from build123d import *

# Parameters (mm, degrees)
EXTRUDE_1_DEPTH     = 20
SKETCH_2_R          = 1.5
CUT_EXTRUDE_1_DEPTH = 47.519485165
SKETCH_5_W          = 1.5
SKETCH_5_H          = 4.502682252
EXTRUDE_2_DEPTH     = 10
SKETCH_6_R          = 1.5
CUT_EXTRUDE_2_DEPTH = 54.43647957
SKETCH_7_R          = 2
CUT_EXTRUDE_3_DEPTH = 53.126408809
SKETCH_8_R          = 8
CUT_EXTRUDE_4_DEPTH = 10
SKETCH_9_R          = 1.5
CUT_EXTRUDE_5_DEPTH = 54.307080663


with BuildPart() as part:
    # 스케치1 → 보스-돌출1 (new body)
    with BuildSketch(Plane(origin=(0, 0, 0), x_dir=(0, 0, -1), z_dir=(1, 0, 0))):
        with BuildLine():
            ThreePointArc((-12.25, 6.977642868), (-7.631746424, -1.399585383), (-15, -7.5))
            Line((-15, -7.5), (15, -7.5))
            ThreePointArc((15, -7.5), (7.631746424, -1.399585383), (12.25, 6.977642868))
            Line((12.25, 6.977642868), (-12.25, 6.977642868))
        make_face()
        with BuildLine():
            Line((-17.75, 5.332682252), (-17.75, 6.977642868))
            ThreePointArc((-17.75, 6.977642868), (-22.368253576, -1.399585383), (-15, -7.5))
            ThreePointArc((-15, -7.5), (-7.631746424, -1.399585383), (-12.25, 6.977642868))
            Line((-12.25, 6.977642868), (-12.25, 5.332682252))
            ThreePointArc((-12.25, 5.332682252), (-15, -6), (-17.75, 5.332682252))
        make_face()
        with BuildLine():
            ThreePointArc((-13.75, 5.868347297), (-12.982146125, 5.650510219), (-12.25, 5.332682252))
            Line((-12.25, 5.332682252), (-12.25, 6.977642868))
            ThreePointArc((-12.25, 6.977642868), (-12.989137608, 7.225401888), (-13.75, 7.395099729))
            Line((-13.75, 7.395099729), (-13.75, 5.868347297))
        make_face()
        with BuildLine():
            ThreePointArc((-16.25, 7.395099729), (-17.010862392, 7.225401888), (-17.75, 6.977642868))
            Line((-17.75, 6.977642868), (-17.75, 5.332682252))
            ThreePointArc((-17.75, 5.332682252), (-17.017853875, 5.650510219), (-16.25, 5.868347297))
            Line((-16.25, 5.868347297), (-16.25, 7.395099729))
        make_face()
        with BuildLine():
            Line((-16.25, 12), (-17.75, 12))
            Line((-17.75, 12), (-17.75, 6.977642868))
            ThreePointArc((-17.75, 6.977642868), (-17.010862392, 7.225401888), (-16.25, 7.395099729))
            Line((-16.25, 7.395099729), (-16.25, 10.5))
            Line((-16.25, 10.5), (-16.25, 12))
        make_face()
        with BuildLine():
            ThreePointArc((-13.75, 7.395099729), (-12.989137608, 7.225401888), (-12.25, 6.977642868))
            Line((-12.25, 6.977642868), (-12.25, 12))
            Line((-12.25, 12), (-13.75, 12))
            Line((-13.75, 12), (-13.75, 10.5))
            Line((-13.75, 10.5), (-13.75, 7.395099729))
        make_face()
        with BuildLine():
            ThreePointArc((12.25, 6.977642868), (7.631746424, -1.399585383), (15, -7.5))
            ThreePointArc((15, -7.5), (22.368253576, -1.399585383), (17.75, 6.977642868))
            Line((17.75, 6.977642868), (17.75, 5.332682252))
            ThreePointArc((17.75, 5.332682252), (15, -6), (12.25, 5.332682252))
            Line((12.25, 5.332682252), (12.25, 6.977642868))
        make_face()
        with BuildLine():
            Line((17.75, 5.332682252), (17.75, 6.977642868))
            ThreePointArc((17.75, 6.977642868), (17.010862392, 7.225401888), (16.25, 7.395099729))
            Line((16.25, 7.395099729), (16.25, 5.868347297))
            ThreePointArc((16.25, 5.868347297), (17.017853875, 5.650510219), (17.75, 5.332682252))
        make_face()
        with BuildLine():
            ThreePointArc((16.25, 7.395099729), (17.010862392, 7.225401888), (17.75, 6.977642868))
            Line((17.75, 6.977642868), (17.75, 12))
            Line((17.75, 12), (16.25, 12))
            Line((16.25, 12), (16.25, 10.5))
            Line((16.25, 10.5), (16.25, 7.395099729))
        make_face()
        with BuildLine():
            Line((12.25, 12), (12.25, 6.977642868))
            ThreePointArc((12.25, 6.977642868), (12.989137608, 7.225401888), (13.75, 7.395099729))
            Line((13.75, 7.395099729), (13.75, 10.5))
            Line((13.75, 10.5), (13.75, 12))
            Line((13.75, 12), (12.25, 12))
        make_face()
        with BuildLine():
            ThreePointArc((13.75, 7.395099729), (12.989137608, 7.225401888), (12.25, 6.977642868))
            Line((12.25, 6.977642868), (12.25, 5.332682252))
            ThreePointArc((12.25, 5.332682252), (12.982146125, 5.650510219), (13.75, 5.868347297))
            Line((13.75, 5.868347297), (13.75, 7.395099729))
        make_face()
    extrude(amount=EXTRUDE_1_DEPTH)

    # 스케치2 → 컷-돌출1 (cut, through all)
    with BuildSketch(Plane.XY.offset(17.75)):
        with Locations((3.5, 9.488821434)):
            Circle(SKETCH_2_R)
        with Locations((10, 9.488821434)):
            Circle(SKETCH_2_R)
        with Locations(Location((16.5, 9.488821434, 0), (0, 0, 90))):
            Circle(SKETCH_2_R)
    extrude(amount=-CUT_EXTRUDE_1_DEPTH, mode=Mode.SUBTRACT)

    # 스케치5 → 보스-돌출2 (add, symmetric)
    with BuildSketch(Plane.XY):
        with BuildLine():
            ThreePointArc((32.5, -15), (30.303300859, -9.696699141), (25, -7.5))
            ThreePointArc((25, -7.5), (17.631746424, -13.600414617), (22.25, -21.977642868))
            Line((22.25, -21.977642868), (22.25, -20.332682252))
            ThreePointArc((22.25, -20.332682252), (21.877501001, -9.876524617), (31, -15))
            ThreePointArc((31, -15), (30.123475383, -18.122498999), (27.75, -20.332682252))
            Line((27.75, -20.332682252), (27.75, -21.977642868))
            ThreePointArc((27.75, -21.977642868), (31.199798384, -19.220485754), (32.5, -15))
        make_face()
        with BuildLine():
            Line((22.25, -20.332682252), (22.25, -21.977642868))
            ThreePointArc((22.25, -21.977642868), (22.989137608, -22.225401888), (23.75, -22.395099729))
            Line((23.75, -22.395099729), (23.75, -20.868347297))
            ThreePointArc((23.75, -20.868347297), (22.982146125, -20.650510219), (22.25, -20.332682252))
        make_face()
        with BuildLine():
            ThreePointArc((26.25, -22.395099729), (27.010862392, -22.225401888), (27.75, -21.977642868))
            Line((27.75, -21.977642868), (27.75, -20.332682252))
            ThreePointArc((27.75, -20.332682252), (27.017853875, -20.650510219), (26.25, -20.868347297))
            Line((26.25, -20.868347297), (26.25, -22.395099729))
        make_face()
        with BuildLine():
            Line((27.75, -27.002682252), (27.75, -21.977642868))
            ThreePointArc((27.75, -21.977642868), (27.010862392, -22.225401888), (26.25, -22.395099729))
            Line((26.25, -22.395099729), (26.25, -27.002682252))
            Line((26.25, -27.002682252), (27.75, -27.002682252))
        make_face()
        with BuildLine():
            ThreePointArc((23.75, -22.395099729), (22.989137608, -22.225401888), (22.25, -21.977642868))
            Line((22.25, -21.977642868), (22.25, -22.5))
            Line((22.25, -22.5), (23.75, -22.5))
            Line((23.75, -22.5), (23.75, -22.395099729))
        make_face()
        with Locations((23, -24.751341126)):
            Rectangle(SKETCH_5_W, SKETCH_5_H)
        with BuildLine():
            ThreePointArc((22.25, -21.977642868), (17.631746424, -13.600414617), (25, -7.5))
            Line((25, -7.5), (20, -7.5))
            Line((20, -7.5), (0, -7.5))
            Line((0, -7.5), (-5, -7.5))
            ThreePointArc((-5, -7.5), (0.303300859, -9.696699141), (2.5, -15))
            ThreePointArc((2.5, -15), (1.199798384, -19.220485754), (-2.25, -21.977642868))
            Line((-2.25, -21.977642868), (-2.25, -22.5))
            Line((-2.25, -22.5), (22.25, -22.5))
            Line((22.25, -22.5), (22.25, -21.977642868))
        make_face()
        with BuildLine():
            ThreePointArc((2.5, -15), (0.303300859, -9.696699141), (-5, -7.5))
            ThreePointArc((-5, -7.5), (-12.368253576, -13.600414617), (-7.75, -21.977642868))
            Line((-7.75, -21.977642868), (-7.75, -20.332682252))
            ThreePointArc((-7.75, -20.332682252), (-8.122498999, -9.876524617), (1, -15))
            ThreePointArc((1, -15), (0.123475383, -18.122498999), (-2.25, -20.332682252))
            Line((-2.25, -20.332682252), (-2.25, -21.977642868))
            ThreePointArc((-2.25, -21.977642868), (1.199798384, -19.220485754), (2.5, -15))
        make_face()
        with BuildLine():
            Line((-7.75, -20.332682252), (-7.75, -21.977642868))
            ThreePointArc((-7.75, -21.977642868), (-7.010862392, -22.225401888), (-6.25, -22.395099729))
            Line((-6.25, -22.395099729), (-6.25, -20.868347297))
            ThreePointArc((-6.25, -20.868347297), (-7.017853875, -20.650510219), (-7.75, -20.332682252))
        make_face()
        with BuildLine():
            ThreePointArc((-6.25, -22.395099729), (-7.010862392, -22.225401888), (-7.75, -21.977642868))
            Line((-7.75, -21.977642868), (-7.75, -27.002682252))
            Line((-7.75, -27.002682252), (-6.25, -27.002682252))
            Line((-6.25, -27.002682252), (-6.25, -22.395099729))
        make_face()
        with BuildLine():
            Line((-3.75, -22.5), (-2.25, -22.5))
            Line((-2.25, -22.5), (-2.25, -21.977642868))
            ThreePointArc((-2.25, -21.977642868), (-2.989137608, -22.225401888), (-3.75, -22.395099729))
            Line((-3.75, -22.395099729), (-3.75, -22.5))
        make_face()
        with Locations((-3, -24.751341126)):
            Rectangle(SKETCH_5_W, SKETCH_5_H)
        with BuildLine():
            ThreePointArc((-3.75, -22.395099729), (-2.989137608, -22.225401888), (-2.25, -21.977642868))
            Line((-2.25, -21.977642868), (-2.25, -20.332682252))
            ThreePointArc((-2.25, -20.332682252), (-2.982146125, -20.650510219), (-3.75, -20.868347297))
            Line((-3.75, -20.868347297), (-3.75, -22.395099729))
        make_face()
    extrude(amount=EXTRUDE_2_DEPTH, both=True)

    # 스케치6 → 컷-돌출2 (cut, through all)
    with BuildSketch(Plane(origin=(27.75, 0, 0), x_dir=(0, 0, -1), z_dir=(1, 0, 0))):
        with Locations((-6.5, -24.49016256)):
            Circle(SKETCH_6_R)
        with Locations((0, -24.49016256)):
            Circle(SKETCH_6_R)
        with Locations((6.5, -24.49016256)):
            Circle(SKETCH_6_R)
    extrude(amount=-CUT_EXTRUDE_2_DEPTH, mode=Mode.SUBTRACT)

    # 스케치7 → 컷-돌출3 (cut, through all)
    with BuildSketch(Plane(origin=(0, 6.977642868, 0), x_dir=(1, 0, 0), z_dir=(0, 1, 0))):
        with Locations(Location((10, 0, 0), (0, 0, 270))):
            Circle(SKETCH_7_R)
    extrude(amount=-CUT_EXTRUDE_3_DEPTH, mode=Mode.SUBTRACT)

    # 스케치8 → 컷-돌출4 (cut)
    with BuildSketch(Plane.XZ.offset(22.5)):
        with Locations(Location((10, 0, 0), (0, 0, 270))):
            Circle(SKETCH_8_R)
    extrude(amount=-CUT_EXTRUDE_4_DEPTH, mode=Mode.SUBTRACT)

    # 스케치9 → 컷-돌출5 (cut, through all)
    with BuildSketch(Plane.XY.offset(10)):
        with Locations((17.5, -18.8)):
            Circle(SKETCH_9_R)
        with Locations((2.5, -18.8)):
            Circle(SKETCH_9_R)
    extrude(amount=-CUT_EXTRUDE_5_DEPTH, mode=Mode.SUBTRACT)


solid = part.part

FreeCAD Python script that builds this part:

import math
import FreeCAD as App
import Part
import Sketcher

V = App.Vector

doc = App.newDocument("Part")
params = doc.addObject("Spreadsheet::Sheet", "Params")
for row, (alias, value) in enumerate([
    ("sketch1_radius", "6 mm"),
    ("sketch1_radius2", "7.5 mm"),
    ("sketch1_height", "30 mm"),
    ("sketch1_height2", "1.5 mm"),
    ("sketch1_height3", "24.5 mm"),
    ("pad1_length", "20 mm"),
    ("sketch2_diameter", "3 mm"),
    ("sketch3_radius", "6 mm"),
    ("sketch3_radius2", "7.5 mm"),
    ("sketch3_width", "30 mm"),
    ("sketch3_width2", "1.5 mm"),
    ("sketch3_width3", "24.5 mm"),
    ("pad2_length", "20 mm"),
    ("sketch4_diameter", "3 mm"),
    ("sketch5_diameter", "4 mm"),
    ("sketch6_diameter", "16 mm"),
    ("pocket4_length", "10 mm"),
    ("sketch7_diameter", "3 mm"),
], start=1):
    params.set(f"A{row}", alias)
    params.set(f"B{row}", "=" + value)
    params.setAlias(f"B{row}", alias)

body = doc.addObject("PartDesign::Body", "Body")

# Sketch on YZ plane
sketch1 = body.newObject("Sketcher::SketchObject", "Sketch")
sketch1.AttachmentSupport = (doc.getObject("YZ_Plane"), [""])
sketch1.MapMode = "FlatFace"
sketch1.addGeometry(Part.LineSegment(V(-7.5, 15, 0), V(-7.5, -15, 0)), False)
sketch1.addGeometry(Part.ArcOfCircle(Part.Circle(V(0, -15, 0), V(0, 0, 1), 7.5), math.radians(180), math.radians(338)), False)
sketch1.addGeometry(Part.LineSegment(V(7, -17.8, 0), V(12, -17.8, 0)), False)
sketch1.addGeometry(Part.LineSegment(V(12, -17.8, 0), V(12, -16.2, 0)), False)
sketch1.addGeometry(Part.LineSegment(V(12, -16.2, 0), V(5.9, -16.2, 0)), False)
sketch1.addGeometry(Part.ArcOfCircle(Part.Circle(V(0, -15, 0), V(0, 0, 1), 6), math.radians(-27.28), math.radians(-12.02)), False)
sketch1.addGeometry(Part.ArcOfCircle(Part.Circle(V(0, -15, 0), V(0, 0, 1), 6), math.radians(27), math.radians(333)), False)
sketch1.addGeometry(Part.ArcOfCircle(Part.Circle(V(0, -15, 0), V(0, 0, 1), 6), math.radians(12.02), math.radians(27.28)), False)
sketch1.addGeometry(Part.LineSegment(V(5.9, -13.8, 0), V(12, -13.8, 0)), False)
sketch1.addGeometry(Part.LineSegment(V(12, -13.8, 0), V(12, -12.2, 0)), False)
sketch1.addGeometry(Part.LineSegment(V(12, -12.2, 0), V(7, -12.2, 0)), False)
sketch1.addGeometry(Part.LineSegment(V(7, -12.2, 0), V(7, 12.2, 0)), False)
sketch1.addGeometry(Part.LineSegment(V(7, 12.2, 0), V(12, 12.2, 0)), False)
sketch1.addGeometry(Part.LineSegment(V(12, 12.2, 0), V(12, 13.8, 0)), False)
sketch1.addGeometry(Part.LineSegment(V(12, 13.8, 0), V(5.9, 13.8, 0)), False)
sketch1.addGeometry(Part.ArcOfCircle(Part.Circle(V(0, 15, 0), V(0, 0, 1), 6), math.radians(-27.28), math.radians(-12.02)), False)
sketch1.addGeometry(Part.ArcOfCircle(Part.Circle(V(0, 15, 0), V(0, 0, 1), 6), math.radians(27), math.radians(333)), False)
sketch1.addGeometry(Part.ArcOfCircle(Part.Circle(V(0, 15, 0), V(0, 0, 1), 6), math.radians(12.02), math.radians(27.28)), False)
sketch1.addGeometry(Part.LineSegment(V(5.9, 16.2, 0), V(12, 16.2, 0)), False)
sketch1.addGeometry(Part.LineSegment(V(12, 16.2, 0), V(12, 17.8, 0)), False)
sketch1.addGeometry(Part.LineSegment(V(12, 17.8, 0), V(7, 17.8, 0)), False)
sketch1.addGeometry(Part.ArcOfCircle(Part.Circle(V(0, 15, 0), V(0, 0, 1), 7.5), math.radians(22), math.radians(180)), False)
sketch1.addConstraint(Sketcher.Constraint("Tangent", 0, 2, 1, 1))
sketch1.addConstraint(Sketcher.Constraint("Coincident", 1, 2, 2, 1))
sketch1.addConstraint(Sketcher.Constraint("Coincident", 2, 2, 3, 1))
sketch1.addConstraint(Sketcher.Constraint("Coincident", 3, 2, 4, 1))
sketch1.addConstraint(Sketcher.Constraint("Coincident", 4, 2, 5, 2))
sketch1.addConstraint(Sketcher.Constraint("Tangent", 5, 1, 6, 2))
sketch1.addConstraint(Sketcher.Constraint("Tangent", 6, 1, 7, 2))
sketch1.addConstraint(Sketcher.Constraint("Coincident", 7, 1, 8, 1))
sketch1.addConstraint(Sketcher.Constraint("Coincident", 8, 2, 9, 1))
sketch1.addConstraint(Sketcher.Constraint("Coincident", 9, 2, 10, 1))
sketch1.addConstraint(Sketcher.Constraint("Coincident", 10, 2, 11, 1))
sketch1.addConstraint(Sketcher.Constraint("Coincident", 11, 2, 12, 1))
sketch1.addConstraint(Sketcher.Constraint("Coincident", 12, 2, 13, 1))
sketch1.addConstraint(Sketcher.Constraint("Coincident", 13, 2, 14, 1))
sketch1.addConstraint(Sketcher.Constraint("Coincident", 14, 2, 15, 2))
sketch1.addConstraint(Sketcher.Constraint("Tangent", 15, 1, 16, 2))
sketch1.addConstraint(Sketcher.Constraint("Tangent", 16, 1, 17, 2))
sketch1.addConstraint(Sketcher.Constraint("Coincident", 17, 1, 18, 1))
sketch1.addConstraint(Sketcher.Constraint("Coincident", 18, 2, 19, 1))
sketch1.addConstraint(Sketcher.Constraint("Coincident", 19, 2, 20, 1))
sketch1.addConstraint(Sketcher.Constraint("Coincident", 20, 2, 21, 1))
sketch1.addConstraint(Sketcher.Constraint("Tangent", 21, 2, 0, 1))
sketch1.addConstraint(Sketcher.Constraint("Vertical", 0))
sketch1.addConstraint(Sketcher.Constraint("Horizontal", 2))
sketch1.addConstraint(Sketcher.Constraint("Vertical", 3))
sketch1.addConstraint(Sketcher.Constraint("Horizontal", 4))
sketch1.addConstraint(Sketcher.Constraint("Horizontal", 8))
sketch1.addConstraint(Sketcher.Constraint("Vertical", 9))
sketch1.addConstraint(Sketcher.Constraint("Horizontal", 10))
sketch1.addConstraint(Sketcher.Constraint("Vertical", 11))
sketch1.addConstraint(Sketcher.Constraint("Horizontal", 12))
sketch1.addConstraint(Sketcher.Constraint("Vertical", 13))
sketch1.addConstraint(Sketcher.Constraint("Horizontal", 14))
sketch1.addConstraint(Sketcher.Constraint("Horizontal", 18))
sketch1.addConstraint(Sketcher.Constraint("Vertical", 19))
sketch1.addConstraint(Sketcher.Constraint("Horizontal", 20))
sketch1.addConstraint(Sketcher.Constraint("Coincident", 5, 3, 1, 3))
sketch1.addConstraint(Sketcher.Constraint("Coincident", 7, 3, 1, 3))
sketch1.addConstraint(Sketcher.Constraint("Coincident", 17, 3, 15, 3))
sketch1.addConstraint(Sketcher.Constraint("Coincident", 21, 3, 15, 3))
sketch1.addConstraint(Sketcher.Constraint("Equal", 7, 15))
sketch1.addConstraint(Sketcher.Constraint("Equal", 1, 21))
sketch1.addConstraint(Sketcher.Constraint("Symmetric", 1, 3, 15, 3, -1, 1))
sketch1.addConstraint(Sketcher.Constraint("Symmetric", 9, 2, 12, 2, -1))
sketch1.addConstraint(Sketcher.Constraint("Symmetric", 3, 2, 18, 2, -1))
sketch1.addConstraint(Sketcher.Constraint("Horizontal", 2, 2, 5, 1))
sketch1.addConstraint(Sketcher.Constraint("Horizontal", 6, 1, 9, 2))
sketch1.addConstraint(Sketcher.Constraint("Horizontal", 12, 2, 15, 1))
sketch1.addConstraint(Sketcher.Constraint("Horizontal", 16, 1, 19, 2))
sketch1.addConstraint(Sketcher.Constraint("Vertical", 5, 1, 6, 1))
sketch1.addConstraint(Sketcher.Constraint("Vertical", 4, 2, 7, 1))
sketch1.addConstraint(Sketcher.Constraint("Vertical", 3, 2, 8, 2))
sketch1.addConstraint(Sketcher.Constraint("Vertical", 1, 2, 10, 2))
sketch1.addConstraint(Sketcher.Constraint("Vertical", 7, 1, 14, 2))
sketch1.addConstraint(Sketcher.Constraint("Vertical", 15, 1, 16, 1))
sketch1.addConstraint(Sketcher.Constraint("Radius", 5, 6.0))
sketch1.addConstraint(Sketcher.Constraint("Radius", 1, 7.5))
sketch1.addConstraint(Sketcher.Constraint("DistanceY", 0, 2, 0, 1, 30.0))
sketch1.addConstraint(Sketcher.Constraint("DistanceY", 3, 1, 3, 2, 1.5))
sketch1.addConstraint(Sketcher.Constraint("DistanceY", 11, 1, 11, 2, 24.5))
sketch1.addConstraint(Sketcher.Constraint("DistanceX", -1, 1, 2, 2, 12.0))
sketch1.setExpression("Constraints[55]", "Params.sketch1_radius")
sketch1.setExpression("Constraints[56]", "Params.sketch1_radius2")
sketch1.setExpression("Constraints[57]", "Params.sketch1_height")
sketch1.setExpression("Constraints[58]", "Params.sketch1_height2")
sketch1.setExpression("Constraints[59]", "Params.sketch1_height3")
pad1 = body.newObject("PartDesign::Pad", "Pad")
pad1.Profile = sketch1
pad1.setExpression("Length", "Params.pad1_length")

# Sketch on XY plane
sketch2 = body.newObject("Sketcher::SketchObject", "Sketch001")
sketch2.AttachmentSupport = (doc.getObject("XY_Plane"), [""])
sketch2.MapMode = "FlatFace"
sketch2.AttachmentOffset = App.Placement(V(0, 0, 17.75), App.Rotation())
sketch2.addGeometry(Part.Circle(V(3.5, 9.5, 0), V(0, 0, 1), 1.5), False)
sketch2.addGeometry(Part.Circle(V(10, 9.5, 0), V(0, 0, 1), 1.5), False)
sketch2.addGeometry(Part.Circle(V(16.5, 9.5, 0), V(0, 0, 1), 1.5), False)
sketch2.addConstraint(Sketcher.Constraint("Equal", 0, 1))
sketch2.addConstraint(Sketcher.Constraint("Equal", 1, 2))
sketch2.addConstraint(Sketcher.Constraint("Horizontal", 0, 3, 1, 3))
sketch2.addConstraint(Sketcher.Constraint("Horizontal", 1, 3, 2, 3))
sketch2.addConstraint(Sketcher.Constraint("Diameter", 0, 3.0))
sketch2.addConstraint(Sketcher.Constraint("DistanceX", -1, 1, 1, 3, 10.0))
sketch2.addConstraint(Sketcher.Constraint("DistanceX", 0, 3, 2, 3, 13.0))
sketch2.addConstraint(Sketcher.Constraint("DistanceX", -1, 1, 0, 3, 3.5))
sketch2.addConstraint(Sketcher.Constraint("DistanceY", -1, 1, 0, 3, 9.488821))
sketch2.setExpression("Constraints[4]", "Params.sketch2_diameter")
pocket1 = body.newObject("PartDesign::Pocket", "Pocket")
pocket1.Profile = sketch2
pocket1.Type = "ThroughAll"

# Sketch on XY plane
sketch3 = body.newObject("Sketcher::SketchObject", "Sketch002")
sketch3.AttachmentSupport = (doc.getObject("XY_Plane"), [""])
sketch3.MapMode = "FlatFace"
sketch3.addGeometry(Part.ArcOfCircle(Part.Circle(V(25, -15, 0), V(0, 0, 1), 7.5), math.radians(0), math.radians(90)), False)
sketch3.addGeometry(Part.LineSegment(V(25, -7.5, 0), V(-5, -7.5, 0)), False)
sketch3.addGeometry(Part.ArcOfCircle(Part.Circle(V(-5, -15, 0), V(0, 0, 1), 7.5), math.radians(90), math.radians(248)), False)
sketch3.addGeometry(Part.LineSegment(V(-7.8, -22, 0), V(-7.8, -27, 0)), False)
sketch3.addGeometry(Part.LineSegment(V(-7.8, -27, 0), V(-6.2, -27, 0)), False)
sketch3.addGeometry(Part.LineSegment(V(-6.2, -27, 0), V(-6.2, -20.9, 0)), False)
sketch3.addGeometry(Part.ArcOfCircle(Part.Circle(V(-5, -15, 0), V(0, 0, 1), 6), math.radians(-117.28), math.radians(-102.02)), False)
sketch3.addGeometry(Part.ArcOfCircle(Part.Circle(V(-5, -15, 0), V(0, 0, 1), 6), math.radians(0), math.radians(243)), False)
sketch3.addGeometry(Part.ArcOfCircle(Part.Circle(V(-5, -15, 0), V(0, 0, 1), 6), math.radians(-63), math.radians(0)), False)
sketch3.addGeometry(Part.ArcOfCircle(Part.Circle(V(-5, -15, 0), V(0, 0, 1), 6), math.radians(-77.98), math.radians(-62.72)), False)
sketch3.addGeometry(Part.LineSegment(V(-3.8, -20.9, 0), V(-3.8, -27, 0)), False)
sketch3.addGeometry(Part.LineSegment(V(-3.8, -27, 0), V(-2.2, -27, 0)), False)
sketch3.addGeometry(Part.LineSegment(V(-2.2, -27, 0), V(-2.2, -22.5, 0)), False)
sketch3.addGeometry(Part.LineSegment(V(-2.2, -22.5, 0), V(22.2, -22.5, 0)), False)
sketch3.addGeometry(Part.LineSegment(V(22.2, -22.5, 0), V(22.2, -27, 0)), False)
sketch3.addGeometry(Part.LineSegment(V(22.2, -27, 0), V(23.8, -27, 0)), False)
sketch3.addGeometry(Part.LineSegment(V(23.8, -27, 0), V(23.8, -20.9, 0)), False)
sketch3.addGeometry(Part.ArcOfCircle(Part.Circle(V(25, -15, 0), V(0, 0, 1), 6), math.radians(-117.28), math.radians(-102.02)), False)
sketch3.addGeometry(Part.ArcOfCircle(Part.Circle(V(25, -15, 0), V(0, 0, 1), 6), math.radians(0), math.radians(243)), False)
sketch3.addGeometry(Part.ArcOfCircle(Part.Circle(V(25, -15, 0), V(0, 0, 1), 6), math.radians(-63), math.radians(0)), False)
sketch3.addGeometry(Part.ArcOfCircle(Part.Circle(V(25, -15, 0), V(0, 0, 1), 6), math.radians(-77.98), math.radians(-62.72)), False)
sketch3.addGeometry(Part.LineSegment(V(26.2, -20.9, 0), V(26.2, -27, 0)), False)
sketch3.addGeometry(Part.LineSegment(V(26.2, -27, 0), V(27.8, -27, 0)), False)
sketch3.addGeometry(Part.LineSegment(V(27.8, -27, 0), V(27.8, -22, 0)), False)
sketch3.addGeometry(Part.ArcOfCircle(Part.Circle(V(25, -15, 0), V(0, 0, 1), 7.5), math.radians(-68), math.radians(0)), False)
sketch3.addConstraint(Sketcher.Constraint("Tangent", 0, 2, 1, 1))
sketch3.addConstraint(Sketcher.Constraint("Tangent", 1, 2, 2, 1))
sketch3.addConstraint(Sketcher.Constraint("Coincident", 2, 2, 3, 1))
sketch3.addConstraint(Sketcher.Constraint("Coincident", 3, 2, 4, 1))
sketch3.addConstraint(Sketcher.Constraint("Coincident", 4, 2, 5, 1))
sketch3.addConstraint(Sketcher.Constraint("Coincident", 5, 2, 6, 2))
sketch3.addConstraint(Sketcher.Constraint("Tangent", 6, 1, 7, 2))
sketch3.addConstraint(Sketcher.Constraint("Tangent", 7, 1, 8, 2))
sketch3.addConstraint(Sketcher.Constraint("Tangent", 8, 1, 9, 2))
sketch3.addConstraint(Sketcher.Constraint("Coincident", 9, 1, 10, 1))
sketch3.addConstraint(Sketcher.Constraint("Coincident", 10, 2, 11, 1))
sketch3.addConstraint(Sketcher.Constraint("Coincident", 11, 2, 12, 1))
sketch3.addConstraint(Sketcher.Constraint("Coincident", 12, 2, 13, 1))
sketch3.addConstraint(Sketcher.Constraint("Coincident", 13, 2, 14, 1))
sketch3.addConstraint(Sketcher.Constraint("Coincident", 14, 2, 15, 1))
sketch3.addConstraint(Sketcher.Constraint("Coincident", 15, 2, 16, 1))
sketch3.addConstraint(Sketcher.Constraint("Coincident", 16, 2, 17, 2))
sketch3.addConstraint(Sketcher.Constraint("Tangent", 17, 1, 18, 2))
sketch3.addConstraint(Sketcher.Constraint("Tangent", 18, 1, 19, 2))
sketch3.addConstraint(Sketcher.Constraint("Tangent", 19, 1, 20, 2))
sketch3.addConstraint(Sketcher.Constraint("Coincident", 20, 1, 21, 1))
sketch3.addConstraint(Sketcher.Constraint("Coincident", 21, 2, 22, 1))
sketch3.addConstraint(Sketcher.Constraint("Coincident", 22, 2, 23, 1))
sketch3.addConstraint(Sketcher.Constraint("Coincident", 23, 2, 24, 1))
sketch3.addConstraint(Sketcher.Constraint("Tangent", 24, 2, 0, 1))
sketch3.addConstraint(Sketcher.Constraint("Horizontal", 1))
sketch3.addConstraint(Sketcher.Constraint("Vertical", 3))
sketch3.addConstraint(Sketcher.Constraint("Horizontal", 4))
sketch3.addConstraint(Sketcher.Constraint("Vertical", 5))
sketch3.addConstraint(Sketcher.Constraint("Vertical", 10))
sketch3.addConstraint(Sketcher.Constraint("Horizontal", 11))
sketch3.addConstraint(Sketcher.Constraint("Vertical", 12))
sketch3.addConstraint(Sketcher.Constraint("Horizontal", 13))
sketch3.addConstraint(Sketcher.Constraint("Vertical", 14))
sketch3.addConstraint(Sketcher.Constraint("Horizontal", 15))
sketch3.addConstraint(Sketcher.Constraint("Vertical", 16))
sketch3.addConstraint(Sketcher.Constraint("Vertical", 21))
sketch3.addConstraint(Sketcher.Constraint("Horizontal", 22))
sketch3.addConstraint(Sketcher.Constraint("Vertical", 23))
sketch3.addConstraint(Sketcher.Constraint("Coincident", 6, 3, 2, 3))
sketch3.addConstraint(Sketcher.Constraint("Coincident", 8, 3, 2, 3))
sketch3.addConstraint(Sketcher.Constraint("Coincident", 17, 3, 0, 3))
sketch3.addConstraint(Sketcher.Constraint("Coincident", 19, 3, 0, 3))
sketch3.addConstraint(Sketcher.Constraint("Equal", 0, 2))
sketch3.addConstraint(Sketcher.Constraint("Equal", 8, 9))
sketch3.addConstraint(Sketcher.Constraint("Equal", 9, 17))
sketch3.addConstraint(Sketcher.Constraint("Equal", 19, 20))
sketch3.addConstraint(Sketcher.Constraint("Equal", 2, 24))
sketch3.addConstraint(Sketcher.Constraint("Horizontal", 24, 3, 7, 1))
sketch3.addConstraint(Sketcher.Constraint("Horizontal", 6, 1, 8, 1))
sketch3.addConstraint(Sketcher.Constraint("Horizontal", 5, 2, 9, 1))
sketch3.addConstraint(Sketcher.Constraint("Horizontal", 4, 2, 10, 2))
sketch3.addConstraint(Sketcher.Constraint("Horizontal", 11, 2, 14, 2))
sketch3.addConstraint(Sketcher.Constraint("Horizontal", 9, 1, 16, 2))
sketch3.addConstraint(Sketcher.Constraint("Horizontal", 8, 1, 17, 1))
sketch3.addConstraint(Sketcher.Constraint("Horizontal", 7, 1, 18, 1))
sketch3.addConstraint(Sketcher.Constraint("Horizontal", 17, 1, 19, 1))
sketch3.addConstraint(Sketcher.Constraint("Horizontal", 16, 2, 20, 1))
sketch3.addConstraint(Sketcher.Constraint("Horizontal", 15, 2, 21, 2))
sketch3.addConstraint(Sketcher.Constraint("Horizontal", 2, 2, 23, 2))
sketch3.addConstraint(Sketcher.Constraint("Horizontal", 18, 1, 24, 2))
sketch3.addConstraint(Sketcher.Constraint("Vertical", 3, 2, 6, 1))
sketch3.addConstraint(Sketcher.Constraint("Vertical", 8, 1, 11, 2))
sketch3.addConstraint(Sketcher.Constraint("Vertical", 14, 2, 17, 1))
sketch3.addConstraint(Sketcher.Constraint("Radius", 6, 6.0))
sketch3.addConstraint(Sketcher.Constraint("Radius", 0, 7.5))
sketch3.addConstraint(Sketcher.Constraint("DistanceX", 1, 2, 1, 1, 30.0))
sketch3.addConstraint(Sketcher.Constraint("DistanceX", 4, 1, 4, 2, 1.5))
sketch3.addConstraint(Sketcher.Constraint("DistanceX", 13, 1, 13, 2, 24.5))
sketch3.addConstraint(Sketcher.Constraint("DistanceX", -1, 1, 0, 3, 25.0))
sketch3.addConstraint(Sketcher.Constraint("DistanceY", 0, 3, -1, 1, 15.0))
sketch3.addConstraint(Sketcher.Constraint("DistanceY", 12, 2, -1, 1, 22.5))
sketch3.addConstraint(Sketcher.Constraint("DistanceY", 11, 2, 8, 1, 6.67))
sketch3.setExpression("Constraints[64]", "Params.sketch3_radius")
sketch3.setExpression("Constraints[65]", "Params.sketch3_radius2")
sketch3.setExpression("Constraints[66]", "Params.sketch3_width")
sketch3.setExpression("Constraints[67]", "Params.sketch3_width2")
sketch3.setExpression("Constraints[68]", "Params.sketch3_width3")
pad2 = body.newObject("PartDesign::Pad", "Pad001")
pad2.Profile = sketch3
pad2.setExpression("Length", "Params.pad2_length")
pad2.Midplane = True

# Sketch on YZ plane
sketch4 = body.newObject("Sketcher::SketchObject", "Sketch003")
sketch4.AttachmentSupport = (doc.getObject("YZ_Plane"), [""])
sketch4.MapMode = "FlatFace"
sketch4.AttachmentOffset = App.Placement(V(0, 0, 27.75), App.Rotation())
sketch4.addGeometry(Part.Circle(V(-24.5, 6.5, 0), V(0, 0, 1), 1.5), False)
sketch4.addGeometry(Part.Circle(V(-24.5, 0, 0), V(0, 0, 1), 1.5), False)
sketch4.addGeometry(Part.Circle(V(-24.5, -6.5, 0), V(0, 0, 1), 1.5), False)
sketch4.addConstraint(Sketcher.Constraint("Equal", 0, 1))
sketch4.addConstraint(Sketcher.Constraint("Equal", 1, 2))
sketch4.addConstraint(Sketcher.Constraint("Symmetric", 0, 3, 2, 3, -1))
sketch4.addConstraint(Sketcher.Constraint("PointOnObject", 1, 3, -1))
sketch4.addConstraint(Sketcher.Constraint("Vertical", 0, 3, 1, 3))
sketch4.addConstraint(Sketcher.Constraint("Diameter", 0, 3.0))
sketch4.addConstraint(Sketcher.Constraint("DistanceY", 2, 3, 0, 3, 13.0))
sketch4.addConstraint(Sketcher.Constraint("DistanceX", 0, 3, -1, 1, 24.490163))
sketch4.setExpression("Constraints[5]", "Params.sketch4_diameter")
pocket2 = body.newObject("PartDesign::Pocket", "Pocket001")
pocket2.Profile = sketch4
pocket2.Type = "ThroughAll"

# Sketch on XZ plane
sketch5 = body.newObject("Sketcher::SketchObject", "Sketch004")
sketch5.AttachmentSupport = (doc.getObject("XZ_Plane"), [""])
sketch5.MapMode = "FlatFace"
sketch5.AttachmentOffset = App.Placement(V(0, 0, -6.977643), App.Rotation())
sketch5.addGeometry(Part.Circle(V(10, 0, 0), V(0, 0, 1), 2), False)
sketch5.addConstraint(Sketcher.Constraint("PointOnObject", 0, 3, -1))
sketch5.addConstraint(Sketcher.Constraint("Diameter", 0, 4.0))
sketch5.addConstraint(Sketcher.Constraint("DistanceX", -1, 1, 0, 3, 10.0))
sketch5.setExpression("Constraints[1]", "Params.sketch5_diameter")
pocket3 = body.newObject("PartDesign::Pocket", "Pocket002")
pocket3.Profile = sketch5
pocket3.Type = "ThroughAll"
pocket3.Reversed = True

# Sketch on XZ plane
sketch6 = body.newObject("Sketcher::SketchObject", "Sketch005")
sketch6.AttachmentSupport = (doc.getObject("XZ_Plane"), [""])
sketch6.MapMode = "FlatFace"
sketch6.AttachmentOffset = App.Placement(V(0, 0, 22.5), App.Rotation())
sketch6.addGeometry(Part.Circle(V(10, 0, 0), V(0, 0, 1), 8), False)
sketch6.addConstraint(Sketcher.Constraint("PointOnObject", 0, 3, -1))
sketch6.addConstraint(Sketcher.Constraint("Diameter", 0, 16.0))
sketch6.addConstraint(Sketcher.Constraint("DistanceX", -1, 1, 0, 3, 10.0))
sketch6.setExpression("Constraints[1]", "Params.sketch6_diameter")
pocket4 = body.newObject("PartDesign::Pocket", "Pocket003")
pocket4.Profile = sketch6
pocket4.setExpression("Length", "Params.pocket4_length")

# Sketch on XY plane
sketch7 = body.newObject("Sketcher::SketchObject", "Sketch006")
sketch7.AttachmentSupport = (doc.getObject("XY_Plane"), [""])
sketch7.MapMode = "FlatFace"
sketch7.AttachmentOffset = App.Placement(V(0, 0, 10), App.Rotation())
sketch7.addGeometry(Part.Circle(V(17.5, -18.8, 0), V(0, 0, 1), 1.5), False)
sketch7.addGeometry(Part.Circle(V(2.5, -18.8, 0), V(0, 0, 1), 1.5), False)
sketch7.addConstraint(Sketcher.Constraint("Equal", 0, 1))
sketch7.addConstraint(Sketcher.Constraint("Horizontal", 0, 3, 1, 3))
sketch7.addConstraint(Sketcher.Constraint("Diameter", 0, 3.0))
sketch7.addConstraint(Sketcher.Constraint("DistanceX", 1, 3, 0, 3, 15.0))
sketch7.addConstraint(Sketcher.Constraint("DistanceX", -1, 1, 0, 3, 17.5))
sketch7.addConstraint(Sketcher.Constraint("DistanceY", 0, 3, -1, 1, 18.8))
sketch7.setExpression("Constraints[2]", "Params.sketch7_diameter")
pocket5 = body.newObject("PartDesign::Pocket", "Pocket004")
pocket5.Profile = sketch7
pocket5.Type = "ThroughAll"

doc.recompute()
